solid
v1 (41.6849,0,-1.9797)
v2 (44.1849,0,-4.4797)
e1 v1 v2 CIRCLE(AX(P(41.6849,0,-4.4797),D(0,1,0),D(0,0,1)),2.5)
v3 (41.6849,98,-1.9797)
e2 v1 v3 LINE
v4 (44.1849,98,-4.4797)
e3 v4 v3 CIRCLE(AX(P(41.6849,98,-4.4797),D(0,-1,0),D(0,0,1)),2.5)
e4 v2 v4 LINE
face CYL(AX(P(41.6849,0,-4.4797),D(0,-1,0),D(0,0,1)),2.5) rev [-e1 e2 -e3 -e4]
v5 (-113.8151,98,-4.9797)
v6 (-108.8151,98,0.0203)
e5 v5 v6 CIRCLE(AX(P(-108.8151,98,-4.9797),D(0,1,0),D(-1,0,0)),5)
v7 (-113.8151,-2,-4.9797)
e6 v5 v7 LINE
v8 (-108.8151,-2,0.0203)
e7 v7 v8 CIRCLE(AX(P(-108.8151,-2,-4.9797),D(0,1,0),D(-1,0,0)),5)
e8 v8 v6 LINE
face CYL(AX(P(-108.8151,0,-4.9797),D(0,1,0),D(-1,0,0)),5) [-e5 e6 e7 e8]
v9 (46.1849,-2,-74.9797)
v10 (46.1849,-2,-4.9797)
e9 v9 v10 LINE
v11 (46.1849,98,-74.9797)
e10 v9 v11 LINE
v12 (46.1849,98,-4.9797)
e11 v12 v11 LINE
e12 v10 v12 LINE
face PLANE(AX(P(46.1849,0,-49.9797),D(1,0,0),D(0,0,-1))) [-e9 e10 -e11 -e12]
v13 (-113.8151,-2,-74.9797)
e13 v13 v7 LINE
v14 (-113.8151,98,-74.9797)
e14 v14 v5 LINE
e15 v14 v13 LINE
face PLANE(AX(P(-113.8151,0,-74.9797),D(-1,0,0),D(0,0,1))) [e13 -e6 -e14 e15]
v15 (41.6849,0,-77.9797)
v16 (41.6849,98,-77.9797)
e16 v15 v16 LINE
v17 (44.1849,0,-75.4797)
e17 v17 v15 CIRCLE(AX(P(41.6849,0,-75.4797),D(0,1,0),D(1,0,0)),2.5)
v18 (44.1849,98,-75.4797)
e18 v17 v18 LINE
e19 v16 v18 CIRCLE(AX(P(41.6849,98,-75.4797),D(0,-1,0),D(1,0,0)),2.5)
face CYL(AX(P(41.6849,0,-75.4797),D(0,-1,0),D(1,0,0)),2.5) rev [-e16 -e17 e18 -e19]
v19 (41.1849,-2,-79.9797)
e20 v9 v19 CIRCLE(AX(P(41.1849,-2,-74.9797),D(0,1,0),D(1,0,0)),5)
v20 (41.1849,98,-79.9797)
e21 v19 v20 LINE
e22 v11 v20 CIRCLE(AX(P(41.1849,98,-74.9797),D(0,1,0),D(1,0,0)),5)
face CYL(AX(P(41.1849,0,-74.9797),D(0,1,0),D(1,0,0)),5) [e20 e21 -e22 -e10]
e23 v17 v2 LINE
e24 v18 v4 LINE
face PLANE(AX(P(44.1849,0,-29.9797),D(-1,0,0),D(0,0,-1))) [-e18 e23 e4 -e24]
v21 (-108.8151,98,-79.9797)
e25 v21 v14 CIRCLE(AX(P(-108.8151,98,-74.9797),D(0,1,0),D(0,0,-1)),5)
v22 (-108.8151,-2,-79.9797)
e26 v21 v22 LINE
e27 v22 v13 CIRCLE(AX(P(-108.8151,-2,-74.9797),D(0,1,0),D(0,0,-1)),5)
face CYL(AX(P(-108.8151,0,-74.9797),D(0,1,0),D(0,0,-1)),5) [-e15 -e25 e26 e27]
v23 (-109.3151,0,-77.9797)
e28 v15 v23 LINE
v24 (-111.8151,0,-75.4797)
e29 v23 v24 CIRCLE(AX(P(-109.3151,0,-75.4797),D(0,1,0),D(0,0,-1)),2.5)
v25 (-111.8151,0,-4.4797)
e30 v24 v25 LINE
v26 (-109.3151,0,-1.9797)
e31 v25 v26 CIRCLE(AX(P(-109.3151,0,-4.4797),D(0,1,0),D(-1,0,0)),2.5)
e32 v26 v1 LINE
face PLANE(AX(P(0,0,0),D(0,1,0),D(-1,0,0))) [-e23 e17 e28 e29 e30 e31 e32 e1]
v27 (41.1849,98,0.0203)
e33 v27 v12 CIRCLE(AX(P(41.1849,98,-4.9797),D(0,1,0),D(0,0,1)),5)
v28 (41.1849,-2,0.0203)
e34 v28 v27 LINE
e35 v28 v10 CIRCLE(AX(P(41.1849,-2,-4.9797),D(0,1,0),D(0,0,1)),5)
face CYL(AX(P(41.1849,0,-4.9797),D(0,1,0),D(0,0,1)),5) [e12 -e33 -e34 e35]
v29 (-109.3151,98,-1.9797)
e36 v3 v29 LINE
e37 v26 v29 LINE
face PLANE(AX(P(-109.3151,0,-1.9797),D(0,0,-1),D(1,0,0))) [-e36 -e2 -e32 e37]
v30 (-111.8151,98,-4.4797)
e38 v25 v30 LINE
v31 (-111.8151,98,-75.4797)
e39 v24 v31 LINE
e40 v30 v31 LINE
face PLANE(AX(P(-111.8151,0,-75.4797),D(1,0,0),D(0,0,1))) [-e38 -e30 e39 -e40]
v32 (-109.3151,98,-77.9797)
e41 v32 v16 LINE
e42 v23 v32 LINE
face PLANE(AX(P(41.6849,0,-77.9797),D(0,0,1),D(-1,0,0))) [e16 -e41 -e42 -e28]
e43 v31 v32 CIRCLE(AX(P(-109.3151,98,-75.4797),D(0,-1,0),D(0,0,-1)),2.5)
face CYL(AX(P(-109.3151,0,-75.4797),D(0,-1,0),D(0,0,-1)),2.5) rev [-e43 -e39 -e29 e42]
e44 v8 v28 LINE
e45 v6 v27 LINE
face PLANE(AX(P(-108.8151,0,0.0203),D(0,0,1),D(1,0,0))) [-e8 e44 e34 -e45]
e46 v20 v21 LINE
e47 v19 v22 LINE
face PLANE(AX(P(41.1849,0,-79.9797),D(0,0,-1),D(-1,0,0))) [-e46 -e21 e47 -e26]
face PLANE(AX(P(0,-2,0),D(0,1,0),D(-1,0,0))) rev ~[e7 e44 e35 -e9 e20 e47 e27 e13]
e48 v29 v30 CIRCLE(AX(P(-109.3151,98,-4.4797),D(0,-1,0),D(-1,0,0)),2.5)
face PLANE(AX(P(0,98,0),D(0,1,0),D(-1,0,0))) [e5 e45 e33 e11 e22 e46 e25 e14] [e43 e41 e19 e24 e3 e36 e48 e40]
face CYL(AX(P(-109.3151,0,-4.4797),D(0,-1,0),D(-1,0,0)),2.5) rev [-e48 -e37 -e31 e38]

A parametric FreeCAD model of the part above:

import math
import FreeCAD as App
import Part
import Sketcher
from FreeCAD import Vector

doc = App.newDocument("Part")
body = doc.addObject("PartDesign::Body", "Body")

sketch1 = doc.addObject("Sketcher::SketchObject", "Sketch")
body.addObject(sketch1)
sketch1.AttachmentSupport = (doc.XZ_Plane, [""])
sketch1.MapMode = "FlatFace"
sketch1.addGeometry([
    Part.ArcOfCircle(Part.Circle(Vector(-108.8151, -4.9797, 0), Vector(0, 0, 1), 5), math.radians(90), math.radians(180)),
    Part.LineSegment(Vector(-108.8151, 0.0203, 0), Vector(41.1849, 0.0203, 0)),
    Part.ArcOfCircle(Part.Circle(Vector(41.1849, -4.9797, 0), Vector(0, 0, 1), 5), math.radians(0), math.radians(90)),
    Part.LineSegment(Vector(46.1849, -4.9797, 0), Vector(46.1849, -74.9797, 0)),
    Part.ArcOfCircle(Part.Circle(Vector(41.1849, -74.9797, 0), Vector(0, 0, 1), 5), math.radians(-90), math.radians(0)),
    Part.LineSegment(Vector(41.1849, -79.9797, 0), Vector(-108.8151, -79.9797, 0)),
    Part.ArcOfCircle(Part.Circle(Vector(-108.8151, -74.9797, 0), Vector(0, 0, 1), 5), math.radians(180), math.radians(270)),
    Part.LineSegment(Vector(-113.8151, -74.9797, 0), Vector(-113.8151, -4.9797, 0)),
], False)
sketch1.addConstraint([
    Sketcher.Constraint("Tangent", 0, 1, 1, 1),
    Sketcher.Constraint("Tangent", 1, 2, 2, 2),
    Sketcher.Constraint("Tangent", 2, 1, 3, 1),
    Sketcher.Constraint("Tangent", 3, 2, 4, 2),
    Sketcher.Constraint("Tangent", 4, 1, 5, 1),
    Sketcher.Constraint("Tangent", 5, 2, 6, 2),
    Sketcher.Constraint("Tangent", 6, 1, 7, 1),
    Sketcher.Constraint("Tangent", 7, 2, 0, 2),
    Sketcher.Constraint("Horizontal", 1),
    Sketcher.Constraint("Vertical", 3),
    Sketcher.Constraint("Horizontal", 5),
    Sketcher.Constraint("Vertical", 7),
    Sketcher.Constraint("Equal", 0, 2),
    Sketcher.Constraint("Equal", 2, 4),
    Sketcher.Constraint("Equal", 4, 6),
    Sketcher.Constraint("Radius", 0, 5.0),
    Sketcher.Constraint("DistanceY", 4, 1, 1, 2, 80.0),
    Sketcher.Constraint("DistanceX", 1, 1, 1, 2, 150.0),
    Sketcher.Constraint("DistanceX", 0, 3, -1, 1, 108.815),
    Sketcher.Constraint("DistanceY", 0, 3, -1, 1, 4.9797),
])
pad1 = doc.addObject("PartDesign::Pad", "Pad")
body.addObject(pad1)
pad1.Profile = sketch1
pad1.Length = 2

sketch2 = doc.addObject("Sketcher::SketchObject", "Sketch001")
body.addObject(sketch2)
sketch2.AttachmentSupport = (doc.XZ_Plane, [""])
sketch2.MapMode = "FlatFace"
sketch2.addGeometry([
    Part.ArcOfCircle(Part.Circle(Vector(-108.8151, -4.9797, 0), Vector(0, 0, 1), 5), math.radians(90), math.radians(180)),
    Part.LineSegment(Vector(-108.8151, 0.0203, 0), Vector(41.1849, 0.0203, 0)),
    Part.ArcOfCircle(Part.Circle(Vector(41.1849, -4.9797, 0), Vector(0, 0, 1), 5), math.radians(0), math.radians(90)),
    Part.LineSegment(Vector(46.1849, -4.9797, 0), Vector(46.1849, -74.9797, 0)),
    Part.ArcOfCircle(Part.Circle(Vector(41.1849, -74.9797, 0), Vector(0, 0, 1), 5), math.radians(-90), math.radians(0)),
    Part.LineSegment(Vector(41.1849, -79.9797, 0), Vector(-108.8151, -79.9797, 0)),
    Part.ArcOfCircle(Part.Circle(Vector(-108.8151, -74.9797, 0), Vector(0, 0, 1), 5), math.radians(180), math.radians(270)),
    Part.LineSegment(Vector(-113.8151, -74.9797, 0), Vector(-113.8151, -4.9797, 0)),
], False)
sketch2.addConstraint([
    Sketcher.Constraint("Tangent", 0, 1, 1, 1),
    Sketcher.Constraint("Tangent", 1, 2, 2, 2),
    Sketcher.Constraint("Tangent", 2, 1, 3, 1),
    Sketcher.Constraint("Tangent", 3, 2, 4, 2),
    Sketcher.Constraint("Tangent", 4, 1, 5, 1),
    Sketcher.Constraint("Tangent", 5, 2, 6, 2),
    Sketcher.Constraint("Tangent", 6, 1, 7, 1),
    Sketcher.Constraint("Tangent", 7, 2, 0, 2),
    Sketcher.Constraint("Horizontal", 1),
    Sketcher.Constraint("Vertical", 3),
    Sketcher.Constraint("Horizontal", 5),
    Sketcher.Constraint("Vertical", 7),
    Sketcher.Constraint("Equal", 0, 2),
    Sketcher.Constraint("Equal", 2, 4),
    Sketcher.Constraint("Equal", 4, 6),
    Sketcher.Constraint("Radius", 0, 5.0),
    Sketcher.Constraint("DistanceY", 4, 1, 1, 2, 80.0),
    Sketcher.Constraint("DistanceX", 1, 1, 1, 2, 150.0),
    Sketcher.Constraint("DistanceX", 0, 3, -1, 1, 108.815),
    Sketcher.Constraint("DistanceY", 0, 3, -1, 1, 4.9797),
])
pad2 = doc.addObject("PartDesign::Pad", "Pad001")
body.addObject(pad2)
pad2.Profile = sketch2
pad2.Length = 98
pad2.Reversed = True

sketch3 = doc.addObject("Sketcher::SketchObject", "Sketch002")
body.addObject(sketch3)
sketch3.AttachmentSupport = (doc.XZ_Plane, [""])
sketch3.MapMode = "FlatFace"
sketch3.addGeometry([
    Part.LineSegment(Vector(44.1849, -4.4797, 0), Vector(44.1849, -75.4797, 0)),
    Part.ArcOfCircle(Part.Circle(Vector(41.6849, -75.4797, 0), Vector(0, 0, 1), 2.5), math.radians(-90), math.radians(0)),
    Part.LineSegment(Vector(41.6849, -77.9797, 0), Vector(-109.3151, -77.9797, 0)),
    Part.ArcOfCircle(Part.Circle(Vector(-109.3151, -75.4797, 0), Vector(0, 0, 1), 2.5), math.radians(180), math.radians(270)),
    Part.LineSegment(Vector(-111.8151, -75.4797, 0), Vector(-111.8151, -4.4797, 0)),
    Part.ArcOfCircle(Part.Circle(Vector(-109.3151, -4.4797, 0), Vector(0, 0, 1), 2.5), math.radians(90), math.radians(180)),
    Part.LineSegment(Vector(-109.3151, -1.9797, 0), Vector(41.6849, -1.9797, 0)),
    Part.ArcOfCircle(Part.Circle(Vector(41.6849, -4.4797, 0), Vector(0, 0, 1), 2.5), math.radians(0), math.radians(90)),
], False)
sketch3.addConstraint([
    Sketcher.Constraint("Tangent", 0, 2, 1, 2),
    Sketcher.Constraint("Tangent", 1, 1, 2, 1),
    Sketcher.Constraint("Tangent", 2, 2, 3, 2),
    Sketcher.Constraint("Tangent", 3, 1, 4, 1),
    Sketcher.Constraint("Tangent", 4, 2, 5, 2),
    Sketcher.Constraint("Tangent", 5, 1, 6, 1),
    Sketcher.Constraint("Tangent", 6, 2, 7, 2),
    Sketcher.Constraint("Tangent", 7, 1, 0, 1),
    Sketcher.Constraint("Vertical", 0),
    Sketcher.Constraint("Horizontal", 2),
    Sketcher.Constraint("Vertical", 4),
    Sketcher.Constraint("Horizontal", 6),
    Sketcher.Constraint("Equal", 1, 3),
    Sketcher.Constraint("Equal", 3, 5),
    Sketcher.Constraint("Equal", 5, 7),
    Sketcher.Constraint("Radius", 1, 2.5),
    Sketcher.Constraint("DistanceY", 2, 2, 5, 1, 76.0),
    Sketcher.Constraint("DistanceX", 2, 2, 2, 1, 151.0),
    Sketcher.Constraint("DistanceX", -1, 1, 1, 3, 41.685),
    Sketcher.Constraint("DistanceY", 1, 3, -1, 1, 75.4797),
])
pocket1 = doc.addObject("PartDesign::Pocket", "Pocket")
body.addObject(pocket1)
pocket1.Profile = sketch3
pocket1.Length = 100

doc.recompute()
